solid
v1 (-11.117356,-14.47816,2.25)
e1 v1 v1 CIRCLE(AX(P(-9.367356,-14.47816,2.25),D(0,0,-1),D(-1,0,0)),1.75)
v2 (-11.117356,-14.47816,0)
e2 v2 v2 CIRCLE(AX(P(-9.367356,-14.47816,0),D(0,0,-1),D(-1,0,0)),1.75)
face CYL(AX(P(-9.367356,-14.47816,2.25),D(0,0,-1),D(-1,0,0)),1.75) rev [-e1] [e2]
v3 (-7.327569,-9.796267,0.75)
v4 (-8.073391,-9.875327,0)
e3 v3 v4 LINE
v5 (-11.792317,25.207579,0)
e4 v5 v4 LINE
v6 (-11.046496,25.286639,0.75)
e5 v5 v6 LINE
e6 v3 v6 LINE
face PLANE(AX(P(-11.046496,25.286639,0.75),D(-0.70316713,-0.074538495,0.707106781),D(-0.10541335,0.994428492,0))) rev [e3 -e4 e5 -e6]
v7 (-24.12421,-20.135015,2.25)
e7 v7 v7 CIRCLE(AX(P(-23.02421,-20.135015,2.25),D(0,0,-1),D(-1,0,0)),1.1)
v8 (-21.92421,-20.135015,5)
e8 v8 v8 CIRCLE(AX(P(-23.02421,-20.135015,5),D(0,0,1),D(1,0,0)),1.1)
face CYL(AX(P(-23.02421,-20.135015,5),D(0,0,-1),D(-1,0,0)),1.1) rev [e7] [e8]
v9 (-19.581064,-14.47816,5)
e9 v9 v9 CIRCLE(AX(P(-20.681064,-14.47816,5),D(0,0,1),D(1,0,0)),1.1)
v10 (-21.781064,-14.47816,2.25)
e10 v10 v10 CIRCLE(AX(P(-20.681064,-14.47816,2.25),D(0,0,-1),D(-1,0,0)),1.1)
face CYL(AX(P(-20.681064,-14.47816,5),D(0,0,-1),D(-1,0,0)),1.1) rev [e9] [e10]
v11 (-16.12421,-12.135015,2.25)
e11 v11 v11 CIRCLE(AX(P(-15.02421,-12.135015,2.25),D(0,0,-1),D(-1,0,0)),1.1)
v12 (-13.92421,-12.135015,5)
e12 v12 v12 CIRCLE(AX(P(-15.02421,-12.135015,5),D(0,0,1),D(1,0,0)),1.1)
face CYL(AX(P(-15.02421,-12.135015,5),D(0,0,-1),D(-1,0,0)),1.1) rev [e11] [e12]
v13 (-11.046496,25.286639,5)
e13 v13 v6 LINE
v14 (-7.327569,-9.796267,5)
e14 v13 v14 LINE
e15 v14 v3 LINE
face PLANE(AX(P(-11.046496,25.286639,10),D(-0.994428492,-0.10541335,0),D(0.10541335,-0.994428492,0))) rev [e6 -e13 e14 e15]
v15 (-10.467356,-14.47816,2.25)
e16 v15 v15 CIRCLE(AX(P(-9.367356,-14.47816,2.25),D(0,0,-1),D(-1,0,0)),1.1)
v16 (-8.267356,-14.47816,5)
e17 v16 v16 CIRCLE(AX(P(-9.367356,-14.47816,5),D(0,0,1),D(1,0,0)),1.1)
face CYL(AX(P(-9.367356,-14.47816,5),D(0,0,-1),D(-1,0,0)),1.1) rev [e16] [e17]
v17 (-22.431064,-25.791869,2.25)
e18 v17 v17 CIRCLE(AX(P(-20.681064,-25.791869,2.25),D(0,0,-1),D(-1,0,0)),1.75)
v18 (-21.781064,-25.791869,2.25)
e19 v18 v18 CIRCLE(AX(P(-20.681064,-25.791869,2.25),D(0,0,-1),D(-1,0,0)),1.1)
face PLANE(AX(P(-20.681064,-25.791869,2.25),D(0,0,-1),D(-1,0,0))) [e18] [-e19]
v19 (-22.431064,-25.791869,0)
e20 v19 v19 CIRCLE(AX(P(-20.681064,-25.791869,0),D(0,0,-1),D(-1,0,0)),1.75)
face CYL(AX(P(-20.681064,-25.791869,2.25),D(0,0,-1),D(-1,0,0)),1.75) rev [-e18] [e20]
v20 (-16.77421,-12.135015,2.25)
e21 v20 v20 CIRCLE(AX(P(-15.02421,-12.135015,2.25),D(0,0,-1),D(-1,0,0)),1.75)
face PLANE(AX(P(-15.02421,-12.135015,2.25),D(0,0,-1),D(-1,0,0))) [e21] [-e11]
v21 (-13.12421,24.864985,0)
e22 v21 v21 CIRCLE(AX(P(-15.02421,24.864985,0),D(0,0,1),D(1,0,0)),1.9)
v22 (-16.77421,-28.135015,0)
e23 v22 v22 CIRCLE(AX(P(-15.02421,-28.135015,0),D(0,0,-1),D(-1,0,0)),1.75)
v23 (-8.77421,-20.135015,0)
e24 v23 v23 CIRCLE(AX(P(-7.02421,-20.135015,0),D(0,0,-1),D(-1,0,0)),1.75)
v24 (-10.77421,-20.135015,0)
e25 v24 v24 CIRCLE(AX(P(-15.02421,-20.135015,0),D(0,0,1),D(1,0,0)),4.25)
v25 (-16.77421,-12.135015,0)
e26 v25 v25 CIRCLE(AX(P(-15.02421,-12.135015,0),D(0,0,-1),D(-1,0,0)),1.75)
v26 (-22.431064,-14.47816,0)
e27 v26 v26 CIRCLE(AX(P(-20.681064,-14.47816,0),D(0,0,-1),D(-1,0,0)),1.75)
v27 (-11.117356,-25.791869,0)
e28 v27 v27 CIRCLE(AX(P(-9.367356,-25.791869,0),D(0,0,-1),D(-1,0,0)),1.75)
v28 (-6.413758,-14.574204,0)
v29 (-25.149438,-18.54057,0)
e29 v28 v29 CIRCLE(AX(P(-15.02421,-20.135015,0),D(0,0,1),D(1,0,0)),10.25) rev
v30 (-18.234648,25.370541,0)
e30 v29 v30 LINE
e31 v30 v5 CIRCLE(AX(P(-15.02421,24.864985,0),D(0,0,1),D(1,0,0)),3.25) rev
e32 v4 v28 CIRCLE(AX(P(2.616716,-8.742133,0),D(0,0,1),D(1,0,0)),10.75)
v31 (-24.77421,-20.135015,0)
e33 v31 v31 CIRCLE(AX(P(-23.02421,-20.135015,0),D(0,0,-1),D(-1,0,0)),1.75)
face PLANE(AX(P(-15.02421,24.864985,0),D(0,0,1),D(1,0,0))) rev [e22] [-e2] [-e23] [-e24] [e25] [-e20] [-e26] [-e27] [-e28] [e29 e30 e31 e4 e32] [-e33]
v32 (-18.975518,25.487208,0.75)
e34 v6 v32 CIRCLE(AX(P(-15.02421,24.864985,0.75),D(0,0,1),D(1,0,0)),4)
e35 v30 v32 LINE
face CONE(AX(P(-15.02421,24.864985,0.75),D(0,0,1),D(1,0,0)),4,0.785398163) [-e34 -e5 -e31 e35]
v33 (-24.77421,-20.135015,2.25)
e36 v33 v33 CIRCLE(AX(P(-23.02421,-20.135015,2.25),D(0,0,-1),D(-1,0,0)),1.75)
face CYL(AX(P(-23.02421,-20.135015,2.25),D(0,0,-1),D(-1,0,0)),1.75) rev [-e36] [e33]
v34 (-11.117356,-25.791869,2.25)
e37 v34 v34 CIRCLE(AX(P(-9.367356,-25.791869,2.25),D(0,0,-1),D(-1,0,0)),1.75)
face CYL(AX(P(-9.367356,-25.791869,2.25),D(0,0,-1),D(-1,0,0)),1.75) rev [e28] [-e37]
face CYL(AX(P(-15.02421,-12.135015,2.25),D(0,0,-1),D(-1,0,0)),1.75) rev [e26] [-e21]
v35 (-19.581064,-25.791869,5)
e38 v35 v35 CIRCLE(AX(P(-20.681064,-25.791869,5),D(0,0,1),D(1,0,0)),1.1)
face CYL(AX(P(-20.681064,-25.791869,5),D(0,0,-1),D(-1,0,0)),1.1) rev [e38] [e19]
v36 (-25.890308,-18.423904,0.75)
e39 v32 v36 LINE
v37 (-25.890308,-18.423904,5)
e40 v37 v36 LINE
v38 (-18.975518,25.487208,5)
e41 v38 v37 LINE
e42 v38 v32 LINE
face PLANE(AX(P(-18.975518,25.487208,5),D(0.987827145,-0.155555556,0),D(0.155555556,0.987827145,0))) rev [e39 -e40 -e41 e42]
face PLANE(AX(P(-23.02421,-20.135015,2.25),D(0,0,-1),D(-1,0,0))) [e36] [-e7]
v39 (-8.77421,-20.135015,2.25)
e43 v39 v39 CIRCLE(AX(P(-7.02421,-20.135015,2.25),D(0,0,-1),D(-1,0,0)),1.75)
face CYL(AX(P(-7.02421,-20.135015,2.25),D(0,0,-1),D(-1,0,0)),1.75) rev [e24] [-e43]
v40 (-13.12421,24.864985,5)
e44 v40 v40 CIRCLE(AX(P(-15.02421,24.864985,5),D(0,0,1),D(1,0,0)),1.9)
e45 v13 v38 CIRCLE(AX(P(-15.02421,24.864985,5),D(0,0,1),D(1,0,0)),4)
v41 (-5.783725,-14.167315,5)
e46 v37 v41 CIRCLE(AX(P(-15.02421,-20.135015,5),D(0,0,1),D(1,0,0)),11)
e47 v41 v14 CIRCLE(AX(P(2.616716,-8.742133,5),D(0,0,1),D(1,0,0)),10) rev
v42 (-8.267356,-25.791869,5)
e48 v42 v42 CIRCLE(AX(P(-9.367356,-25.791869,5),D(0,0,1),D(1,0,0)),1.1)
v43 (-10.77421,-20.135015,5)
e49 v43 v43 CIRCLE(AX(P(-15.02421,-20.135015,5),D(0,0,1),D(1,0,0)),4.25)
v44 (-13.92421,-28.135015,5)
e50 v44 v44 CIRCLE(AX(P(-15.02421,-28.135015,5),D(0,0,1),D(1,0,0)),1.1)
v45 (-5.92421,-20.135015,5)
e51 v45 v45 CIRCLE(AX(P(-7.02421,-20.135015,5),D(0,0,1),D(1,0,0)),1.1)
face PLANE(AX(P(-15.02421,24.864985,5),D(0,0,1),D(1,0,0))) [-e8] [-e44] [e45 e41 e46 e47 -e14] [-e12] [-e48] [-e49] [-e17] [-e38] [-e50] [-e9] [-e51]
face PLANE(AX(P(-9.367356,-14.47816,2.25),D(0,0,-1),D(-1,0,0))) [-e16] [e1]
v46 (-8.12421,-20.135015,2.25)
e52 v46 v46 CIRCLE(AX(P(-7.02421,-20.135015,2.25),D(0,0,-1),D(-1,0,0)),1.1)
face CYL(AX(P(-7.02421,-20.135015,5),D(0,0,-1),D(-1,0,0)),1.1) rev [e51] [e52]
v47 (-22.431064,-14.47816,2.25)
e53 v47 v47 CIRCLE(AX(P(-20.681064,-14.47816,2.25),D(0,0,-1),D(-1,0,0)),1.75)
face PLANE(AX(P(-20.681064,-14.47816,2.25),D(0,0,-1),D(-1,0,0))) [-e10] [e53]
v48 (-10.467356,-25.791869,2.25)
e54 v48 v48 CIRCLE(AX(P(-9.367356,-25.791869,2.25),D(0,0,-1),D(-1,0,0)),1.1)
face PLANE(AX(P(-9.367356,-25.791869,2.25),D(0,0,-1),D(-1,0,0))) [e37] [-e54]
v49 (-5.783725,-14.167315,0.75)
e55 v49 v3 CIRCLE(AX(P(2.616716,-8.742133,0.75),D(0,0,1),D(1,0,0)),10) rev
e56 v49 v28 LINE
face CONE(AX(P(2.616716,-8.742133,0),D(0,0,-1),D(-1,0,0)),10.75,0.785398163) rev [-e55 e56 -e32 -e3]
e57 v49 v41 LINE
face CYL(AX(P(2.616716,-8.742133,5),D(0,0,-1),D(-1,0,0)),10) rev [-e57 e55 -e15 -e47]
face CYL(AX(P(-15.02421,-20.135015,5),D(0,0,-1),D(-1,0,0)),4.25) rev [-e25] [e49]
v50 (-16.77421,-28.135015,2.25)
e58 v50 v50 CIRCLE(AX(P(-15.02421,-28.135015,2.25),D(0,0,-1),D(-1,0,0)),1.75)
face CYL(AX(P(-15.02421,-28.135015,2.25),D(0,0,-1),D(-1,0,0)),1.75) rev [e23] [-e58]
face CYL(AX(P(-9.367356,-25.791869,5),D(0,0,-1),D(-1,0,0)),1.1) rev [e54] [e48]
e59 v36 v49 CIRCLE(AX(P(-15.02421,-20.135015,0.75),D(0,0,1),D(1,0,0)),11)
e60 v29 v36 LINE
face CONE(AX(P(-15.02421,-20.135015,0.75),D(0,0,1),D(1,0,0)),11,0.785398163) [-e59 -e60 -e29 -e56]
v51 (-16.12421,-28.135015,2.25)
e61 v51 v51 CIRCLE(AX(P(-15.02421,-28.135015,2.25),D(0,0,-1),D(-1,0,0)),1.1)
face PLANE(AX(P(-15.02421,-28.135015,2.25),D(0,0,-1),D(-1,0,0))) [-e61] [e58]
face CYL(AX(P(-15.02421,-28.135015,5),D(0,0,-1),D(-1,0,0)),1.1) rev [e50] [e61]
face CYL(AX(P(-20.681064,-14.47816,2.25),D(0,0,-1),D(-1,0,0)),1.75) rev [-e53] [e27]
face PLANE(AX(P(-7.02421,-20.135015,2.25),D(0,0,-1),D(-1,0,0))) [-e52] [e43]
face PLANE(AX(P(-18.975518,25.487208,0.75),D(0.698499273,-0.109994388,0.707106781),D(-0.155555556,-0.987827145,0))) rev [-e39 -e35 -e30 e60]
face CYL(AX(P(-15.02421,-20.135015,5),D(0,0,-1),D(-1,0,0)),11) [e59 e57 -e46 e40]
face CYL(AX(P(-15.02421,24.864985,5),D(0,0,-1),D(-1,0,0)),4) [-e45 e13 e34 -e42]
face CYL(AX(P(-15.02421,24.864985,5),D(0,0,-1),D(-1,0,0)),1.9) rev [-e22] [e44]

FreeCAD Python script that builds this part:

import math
import FreeCAD as App
import Part
import Sketcher


def edges_at(feature, points):
    """Names of the edges that pass closest to the given points."""
    edges = feature.Shape.Edges
    near = lambda p: min(range(len(edges)), key=lambda i: edges[i].distToShape(Part.Vertex(*p))[0])
    return sorted({f"Edge{near(p) + 1}" for p in points})

doc = App.newDocument("Part")
body = doc.addObject("PartDesign::Body", "Body")

# Sketch on XY plane
sketch1 = doc.addObject("Sketcher::SketchObject", "Sketch")
body.addObject(sketch1)
sketch1.AttachmentSupport = (doc.XY_Plane, [""])
sketch1.MapMode = "FlatFace"
sketch1.addGeometry(Part.LineSegment(App.Vector(-19, 25.5, 0), App.Vector(-25.9, -18.4, 0)), False)
sketch1.addGeometry(Part.ArcOfCircle(Part.Circle(App.Vector(-15, -20.1, 0), App.Vector(0, 0, 1), 11), math.radians(171), math.radians(369)), False)
sketch1.addGeometry(Part.LineSegment(App.Vector(-4.2, -18.4, 0), App.Vector(-11.1, 25.5, 0)), False)
sketch1.addGeometry(Part.ArcOfCircle(Part.Circle(App.Vector(-15, 24.9, 0), App.Vector(0, 0, 1), 4), math.radians(9), math.radians(171)), False)
sketch1.addGeometry(Part.Circle(App.Vector(-20.7, -25.8, 0), App.Vector(0, 0, 1), 1.1), False)
sketch1.addGeometry(Part.Circle(App.Vector(-23, -20.1, 0), App.Vector(0, 0, 1), 1.1), False)
sketch1.addGeometry(Part.Circle(App.Vector(-20.7, -14.5, 0), App.Vector(0, 0, 1), 1.1), False)
sketch1.addGeometry(Part.Circle(App.Vector(-15, -28.1, 0), App.Vector(0, 0, 1), 1.1), False)
sketch1.addGeometry(Part.Circle(App.Vector(-15, -20.1, 0), App.Vector(0, 0, 1), 4.2), False)
sketch1.addGeometry(Part.Circle(App.Vector(-9.4, -25.8, 0), App.Vector(0, 0, 1), 1.1), False)
sketch1.addGeometry(Part.Circle(App.Vector(-7, -20.1, 0), App.Vector(0, 0, 1), 1.1), False)
sketch1.addGeometry(Part.Circle(App.Vector(-15, -12.1, 0), App.Vector(0, 0, 1), 1.1), False)
sketch1.addGeometry(Part.Circle(App.Vector(-9.4, -14.5, 0), App.Vector(0, 0, 1), 1.1), False)
sketch1.addGeometry(Part.Circle(App.Vector(-15, 24.9, 0), App.Vector(0, 0, 1), 1.9), False)
sketch1.addConstraint(Sketcher.Constraint("Tangent", 0, 2, 1, 1))
sketch1.addConstraint(Sketcher.Constraint("Tangent", 1, 2, 2, 1))
sketch1.addConstraint(Sketcher.Constraint("Tangent", 2, 2, 3, 1))
sketch1.addConstraint(Sketcher.Constraint("Tangent", 3, 2, 0, 1))
sketch1.addConstraint(Sketcher.Constraint("Coincident", 8, 3, 1, 3))
sketch1.addConstraint(Sketcher.Constraint("Coincident", 13, 3, 3, 3))
sketch1.addConstraint(Sketcher.Constraint("Equal", 4, 5))
sketch1.addConstraint(Sketcher.Constraint("Equal", 5, 6))
sketch1.addConstraint(Sketcher.Constraint("Equal", 6, 7))
sketch1.addConstraint(Sketcher.Constraint("Equal", 7, 9))
sketch1.addConstraint(Sketcher.Constraint("Equal", 9, 10))
sketch1.addConstraint(Sketcher.Constraint("Equal", 10, 11))
sketch1.addConstraint(Sketcher.Constraint("Equal", 11, 12))
sketch1.addConstraint(Sketcher.Constraint("Horizontal", 1, 3, 5, 3))
sketch1.addConstraint(Sketcher.Constraint("Horizontal", 4, 3, 9, 3))
sketch1.addConstraint(Sketcher.Constraint("Horizontal", 8, 3, 10, 3))
sketch1.addConstraint(Sketcher.Constraint("Horizontal", 6, 3, 12, 3))
sketch1.addConstraint(Sketcher.Constraint("Horizontal", 0, 2, 1, 2))
sketch1.addConstraint(Sketcher.Constraint("Vertical", 4, 3, 6, 3))
sketch1.addConstraint(Sketcher.Constraint("Vertical", 3, 3, 7, 3))
sketch1.addConstraint(Sketcher.Constraint("Vertical", 8, 3, 11, 3))
sketch1.addConstraint(Sketcher.Constraint("Vertical", 9, 3, 12, 3))
sketch1.addConstraint(Sketcher.Constraint("Radius", 1, 11.0))
sketch1.addConstraint(Sketcher.Constraint("Radius", 3, 4.0))
sketch1.addConstraint(Sketcher.Constraint("Diameter", 4, 2.2))
sketch1.addConstraint(Sketcher.Constraint("Diameter", 8, 8.5))
sketch1.addConstraint(Sketcher.Constraint("Diameter", 13, 3.8))
sketch1.addConstraint(Sketcher.Constraint("DistanceY", 1, 3, 3, 3, 45.0))
sketch1.addConstraint(Sketcher.Constraint("DistanceX", 5, 3, 1, 3, 8.0))
sketch1.addConstraint(Sketcher.Constraint("DistanceY", 7, 3, 1, 3, 8.0))
sketch1.addConstraint(Sketcher.Constraint("DistanceX", 1, 3, 10, 3, 8.0))
sketch1.addConstraint(Sketcher.Constraint("DistanceY", 1, 3, 11, 3, 8.0))
sketch1.addConstraint(Sketcher.Constraint("DistanceX", 2, 2, -1, 1, 11.072901))
sketch1.addConstraint(Sketcher.Constraint("DistanceY", 4, 3, -1, 1, 25.791869))
sketch1.addConstraint(Sketcher.Constraint("DistanceY", 6, 3, -1, 1, 14.47816))
sketch1.addConstraint(Sketcher.Constraint("DistanceX", 4, 3, 9, 3, 11.313708))
sketch1.addConstraint(Sketcher.Constraint("DistanceY", 1, 3, -1, 1, 20.135015))
sketch1.addConstraint(Sketcher.Constraint("DistanceX", 4, 3, -1, 1, 20.681064))
pad1 = doc.addObject("PartDesign::Pad", "Pad")
body.addObject(pad1)
pad1.Profile = sketch1
pad1.Length = 5

# Sketch on XY plane
sketch2 = doc.addObject("Sketcher::SketchObject", "Sketch001")
body.addObject(sketch2)
sketch2.AttachmentSupport = (doc.XY_Plane, [""])
sketch2.MapMode = "FlatFace"
sketch2.addGeometry(Part.Circle(App.Vector(-23, -20.1, 0), App.Vector(0, 0, 1), 1.8), False)
sketch2.addGeometry(Part.Circle(App.Vector(-20.7, -25.8, 0), App.Vector(0, 0, 1), 1.8), False)
sketch2.addGeometry(Part.Circle(App.Vector(-15, -28.1, 0), App.Vector(0, 0, 1), 1.8), False)
sketch2.addGeometry(Part.Circle(App.Vector(-9.4, -25.8, 0), App.Vector(0, 0, 1), 1.8), False)
sketch2.addGeometry(Part.Circle(App.Vector(-7, -20.1, 0), App.Vector(0, 0, 1), 1.8), False)
sketch2.addGeometry(Part.Circle(App.Vector(-9.4, -14.5, 0), App.Vector(0, 0, 1), 1.8), False)
sketch2.addGeometry(Part.Circle(App.Vector(-15, -12.1, 0), App.Vector(0, 0, 1), 1.8), False)
sketch2.addGeometry(Part.Circle(App.Vector(-20.7, -14.5, 0), App.Vector(0, 0, 1), 1.8), False)
sketch2.addConstraint(Sketcher.Constraint("Equal", 0, 1))
sketch2.addConstraint(Sketcher.Constraint("Equal", 1, 2))
sketch2.addConstraint(Sketcher.Constraint("Equal", 2, 3))
sketch2.addConstraint(Sketcher.Constraint("Equal", 3, 4))
sketch2.addConstraint(Sketcher.Constraint("Equal", 4, 5))
sketch2.addConstraint(Sketcher.Constraint("Equal", 5, 6))
sketch2.addConstraint(Sketcher.Constraint("Equal", 6, 7))
sketch2.addConstraint(Sketcher.Constraint("Horizontal", 1, 3, 3, 3))
sketch2.addConstraint(Sketcher.Constraint("Horizontal", 0, 3, 4, 3))
sketch2.addConstraint(Sketcher.Constraint("Horizontal", 5, 3, 7, 3))
sketch2.addConstraint(Sketcher.Constraint("Vertical", 3, 3, 5, 3))
sketch2.addConstraint(Sketcher.Constraint("Vertical", 2, 3, 6, 3))
sketch2.addConstraint(Sketcher.Constraint("Vertical", 1, 3, 7, 3))
sketch2.addConstraint(Sketcher.Constraint("Diameter", 0, 3.5))
sketch2.addConstraint(Sketcher.Constraint("DistanceX", 0, 3, 2, 3, 8.0))
sketch2.addConstraint(Sketcher.Constraint("DistanceY", 2, 3, 0, 3, 8.0))
sketch2.addConstraint(Sketcher.Constraint("DistanceX", 2, 3, 4, 3, 8.0))
sketch2.addConstraint(Sketcher.Constraint("DistanceY", 0, 3, 6, 3, 8.0))
sketch2.addConstraint(Sketcher.Constraint("DistanceX", 0, 3, -1, 1, 23.02421))
sketch2.addConstraint(Sketcher.Constraint("DistanceY", 1, 3, -1, 1, 25.791869))
sketch2.addConstraint(Sketcher.Constraint("DistanceY", 5, 3, -1, 1, 14.47816))
sketch2.addConstraint(Sketcher.Constraint("DistanceX", 1, 3, 3, 3, 11.313708))
sketch2.addConstraint(Sketcher.Constraint("DistanceY", 0, 3, -1, 1, 20.135015))
sketch2.addConstraint(Sketcher.Constraint("DistanceX", 1, 3, -1, 1, 20.681064))
pocket1 = doc.addObject("PartDesign::Pocket", "Pocket")
body.addObject(pocket1)
pocket1.Profile = sketch2
pocket1.Length = 2.25
pocket1.Reversed = True

# Sketch on XY plane
sketch3 = doc.addObject("Sketcher::SketchObject", "Sketch002")
body.addObject(sketch3)
sketch3.AttachmentSupport = (doc.XY_Plane, [""])
sketch3.MapMode = "FlatFace"
sketch3.addGeometry(Part.LineSegment(App.Vector(-7.03, -12.58, 0), App.Vector(-11.05, 25.29, 0)), False)
sketch3.addGeometry(Part.ArcOfCircle(Part.Circle(App.Vector(-15.02, 24.86, 0), App.Vector(0, 0, 1), 4), math.radians(6.05), math.radians(8.95)), False)
sketch3.addGeometry(Part.LineSegment(App.Vector(-11.07, 25.49, 0), App.Vector(-4.16, -18.42, 0)), False)
sketch3.addGeometry(Part.ArcOfCircle(Part.Circle(App.Vector(-15.02, -20.14, 0), App.Vector(0, 0, 1), 11), math.radians(9), math.radians(43)), False)
sketch3.addConstraint(Sketcher.Constraint("Tangent", 0, 2, 1, 1))
sketch3.addConstraint(Sketcher.Constraint("Tangent", 1, 2, 2, 1))
sketch3.addConstraint(Sketcher.Constraint("Tangent", 2, 2, 3, 1))
sketch3.addConstraint(Sketcher.Constraint("Coincident", 3, 2, 0, 1))
sketch3.addConstraint(Sketcher.Constraint("Vertical", 1, 3, 3, 3))
sketch3.addConstraint(Sketcher.Constraint("Radius", 1, 3.999999))
sketch3.addConstraint(Sketcher.Constraint("Radius", 3, 11.0))
sketch3.addConstraint(Sketcher.Constraint("DistanceY", 3, 3, 1, 3, 45.0))
sketch3.addConstraint(Sketcher.Constraint("DistanceX", 1, 2, -1, 1, 11.072901))
sketch3.addConstraint(Sketcher.Constraint("DistanceX", 3, 2, 2, 2, 2.874798))
sketch3.addConstraint(Sketcher.Constraint("DistanceY", -1, 1, 0, 2, 25.286639))
pocket2 = doc.addObject("PartDesign::Pocket", "Pocket001")
body.addObject(pocket2)
pocket2.Profile = sketch3
pocket2.Length = 10
pocket2.Reversed = True
doc.recompute()

fillet = doc.addObject("PartDesign::Fillet", "Fillet")
body.addObject(fillet)
fillet.Base = (pocket2, edges_at(pocket2, [(-7.033, -12.576, 2.5)]))
fillet.Radius = 10
doc.recompute()

chamfer = doc.addObject("PartDesign::Chamfer", "Chamfer")
body.addObject(chamfer)
chamfer.Base = (fillet, edges_at(fillet, [
    (-9.187, 7.745, 0),
    (-6.812, -12.072, 0),
    (-15.024, -31.135, 0),
    (-22.433, 3.532, 0),
    (-15.024, 28.865, 0),
]))
chamfer.Size = 0.75

doc.recompute()
